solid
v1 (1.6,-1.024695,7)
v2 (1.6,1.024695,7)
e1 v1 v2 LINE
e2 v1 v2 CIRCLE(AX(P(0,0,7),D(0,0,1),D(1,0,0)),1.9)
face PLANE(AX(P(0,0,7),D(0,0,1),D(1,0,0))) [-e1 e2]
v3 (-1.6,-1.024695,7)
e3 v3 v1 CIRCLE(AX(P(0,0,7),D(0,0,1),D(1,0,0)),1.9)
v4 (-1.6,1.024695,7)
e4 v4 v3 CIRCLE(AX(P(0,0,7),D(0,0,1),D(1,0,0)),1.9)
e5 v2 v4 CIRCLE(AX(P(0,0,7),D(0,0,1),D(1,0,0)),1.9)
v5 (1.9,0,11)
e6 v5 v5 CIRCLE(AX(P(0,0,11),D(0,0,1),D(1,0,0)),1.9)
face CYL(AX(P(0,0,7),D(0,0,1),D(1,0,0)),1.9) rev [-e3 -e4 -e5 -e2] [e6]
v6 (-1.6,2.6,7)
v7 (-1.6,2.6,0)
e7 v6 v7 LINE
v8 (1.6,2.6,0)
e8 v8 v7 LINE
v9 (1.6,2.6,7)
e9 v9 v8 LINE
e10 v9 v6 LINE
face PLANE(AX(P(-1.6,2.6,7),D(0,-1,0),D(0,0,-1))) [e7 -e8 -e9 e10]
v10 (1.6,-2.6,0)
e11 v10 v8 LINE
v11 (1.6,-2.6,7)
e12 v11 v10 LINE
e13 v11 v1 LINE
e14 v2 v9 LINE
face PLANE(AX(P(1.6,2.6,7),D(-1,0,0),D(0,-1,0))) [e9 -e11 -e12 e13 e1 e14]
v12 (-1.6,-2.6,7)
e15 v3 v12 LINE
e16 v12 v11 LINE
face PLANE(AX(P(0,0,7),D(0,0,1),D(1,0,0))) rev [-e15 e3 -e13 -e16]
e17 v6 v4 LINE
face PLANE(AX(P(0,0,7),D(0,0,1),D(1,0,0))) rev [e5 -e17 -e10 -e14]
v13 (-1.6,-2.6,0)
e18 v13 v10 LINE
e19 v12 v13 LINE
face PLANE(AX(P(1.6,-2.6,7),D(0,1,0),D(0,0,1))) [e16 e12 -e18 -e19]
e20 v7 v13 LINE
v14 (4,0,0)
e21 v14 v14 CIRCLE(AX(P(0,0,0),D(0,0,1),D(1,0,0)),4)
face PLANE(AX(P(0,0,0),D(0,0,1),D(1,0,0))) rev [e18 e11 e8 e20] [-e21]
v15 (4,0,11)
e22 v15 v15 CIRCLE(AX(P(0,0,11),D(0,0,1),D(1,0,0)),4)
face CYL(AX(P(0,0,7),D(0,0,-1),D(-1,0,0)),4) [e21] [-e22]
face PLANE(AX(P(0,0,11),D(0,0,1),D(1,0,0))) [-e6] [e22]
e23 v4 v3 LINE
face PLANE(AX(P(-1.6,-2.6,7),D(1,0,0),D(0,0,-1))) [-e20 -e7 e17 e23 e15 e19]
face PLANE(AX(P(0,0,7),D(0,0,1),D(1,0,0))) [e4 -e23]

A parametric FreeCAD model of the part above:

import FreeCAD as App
import Part
import Sketcher

doc = App.newDocument("Part")
params = doc.addObject("Spreadsheet::Sheet", "Params")
for row, (alias, value) in enumerate([
    ("sketch1_diameter", "8 mm"),
    ("sketch1_width", "3.2 mm"),
    ("sketch1_height", "5.2 mm"),
    ("pad1_length", "7 mm"),
    ("sketch2_diameter", "8 mm"),
    ("pad2_length", "4 mm"),
    ("sketch3_diameter", "3.8 mm"),
    ("pocket1_length", "4 mm"),
], start=1):
    params.set(f"A{row}", alias)
    params.set(f"B{row}", "=" + value)
    params.setAlias(f"B{row}", alias)

body = doc.addObject("PartDesign::Body", "Body")

sketch1 = doc.addObject("Sketcher::SketchObject", "Sketch")
body.addObject(sketch1)
sketch1.AttachmentSupport = (doc.XY_Plane, [""])
sketch1.MapMode = "FlatFace"
sketch1.addGeometry(Part.Circle(App.Vector(0, 0, 0), App.Vector(0, 0, 1), 4), False)
sketch1.addGeometry(Part.LineSegment(App.Vector(-1.6, -2.6, 0), App.Vector(-1.6, 2.6, 0)), False)
sketch1.addGeometry(Part.LineSegment(App.Vector(-1.6, 2.6, 0), App.Vector(1.6, 2.6, 0)), False)
sketch1.addGeometry(Part.LineSegment(App.Vector(1.6, 2.6, 0), App.Vector(1.6, -2.6, 0)), False)
sketch1.addGeometry(Part.LineSegment(App.Vector(1.6, -2.6, 0), App.Vector(-1.6, -2.6, 0)), False)
sketch1.addConstraint(Sketcher.Constraint("Coincident", 1, 2, 2, 1))
sketch1.addConstraint(Sketcher.Constraint("Coincident", 2, 2, 3, 1))
sketch1.addConstraint(Sketcher.Constraint("Coincident", 3, 2, 4, 1))
sketch1.addConstraint(Sketcher.Constraint("Coincident", 4, 2, 1, 1))
sketch1.addConstraint(Sketcher.Constraint("Vertical", 1))
sketch1.addConstraint(Sketcher.Constraint("Horizontal", 2))
sketch1.addConstraint(Sketcher.Constraint("Vertical", 3))
sketch1.addConstraint(Sketcher.Constraint("Horizontal", 4))
sketch1.addConstraint(Sketcher.Constraint("Coincident", 0, 3, -1, 1))
sketch1.addConstraint(Sketcher.Constraint("Symmetric", 1, 2, 3, 2, -1, 1))
sketch1.addConstraint(Sketcher.Constraint("Diameter", 0, 8.0))
sketch1.addConstraint(Sketcher.Constraint("DistanceX", 2, 1, 2, 2, 3.2))
sketch1.addConstraint(Sketcher.Constraint("DistanceY", 1, 1, 1, 2, 5.2))
sketch1.setExpression("Constraints[10]", "Params.sketch1_diameter")
sketch1.setExpression("Constraints[11]", "Params.sketch1_width")
sketch1.setExpression("Constraints[12]", "Params.sketch1_height")
pad1 = doc.addObject("PartDesign::Pad", "Pad")
body.addObject(pad1)
pad1.Profile = sketch1
pad1.setExpression("Length", "Params.pad1_length")

sketch2 = doc.addObject("Sketcher::SketchObject", "Sketch001")
body.addObject(sketch2)
sketch2.AttachmentSupport = (doc.XY_Plane, [""])
sketch2.MapMode = "FlatFace"
sketch2.AttachmentOffset = App.Placement(App.Vector(0, 0, 7), App.Rotation())
sketch2.addGeometry(Part.Circle(App.Vector(0, 0, 0), App.Vector(0, 0, 1), 4), False)
sketch2.addConstraint(Sketcher.Constraint("Coincident", 0, 3, -1, 1))
sketch2.addConstraint(Sketcher.Constraint("Diameter", 0, 8.0))
sketch2.setExpression("Constraints[1]", "Params.sketch2_diameter")
pad2 = doc.addObject("PartDesign::Pad", "Pad001")
body.addObject(pad2)
pad2.Profile = sketch2
pad2.setExpression("Length", "Params.pad2_length")

sketch3 = doc.addObject("Sketcher::SketchObject", "Sketch002")
body.addObject(sketch3)
sketch3.AttachmentSupport = (doc.XY_Plane, [""])
sketch3.MapMode = "FlatFace"
sketch3.AttachmentOffset = App.Placement(App.Vector(0, 0, 11), App.Rotation())
sketch3.addGeometry(Part.Circle(App.Vector(0, 0, 0), App.Vector(0, 0, 1), 1.9), False)
sketch3.addConstraint(Sketcher.Constraint("Coincident", 0, 3, -1, 1))
sketch3.addConstraint(Sketcher.Constraint("Diameter", 0, 3.8))
sketch3.setExpression("Constraints[1]", "Params.sketch3_diameter")
pocket1 = doc.addObject("PartDesign::Pocket", "Pocket")
body.addObject(pocket1)
pocket1.Profile = sketch3
pocket1.setExpression("Length", "Params.pocket1_length")

doc.recompute()
